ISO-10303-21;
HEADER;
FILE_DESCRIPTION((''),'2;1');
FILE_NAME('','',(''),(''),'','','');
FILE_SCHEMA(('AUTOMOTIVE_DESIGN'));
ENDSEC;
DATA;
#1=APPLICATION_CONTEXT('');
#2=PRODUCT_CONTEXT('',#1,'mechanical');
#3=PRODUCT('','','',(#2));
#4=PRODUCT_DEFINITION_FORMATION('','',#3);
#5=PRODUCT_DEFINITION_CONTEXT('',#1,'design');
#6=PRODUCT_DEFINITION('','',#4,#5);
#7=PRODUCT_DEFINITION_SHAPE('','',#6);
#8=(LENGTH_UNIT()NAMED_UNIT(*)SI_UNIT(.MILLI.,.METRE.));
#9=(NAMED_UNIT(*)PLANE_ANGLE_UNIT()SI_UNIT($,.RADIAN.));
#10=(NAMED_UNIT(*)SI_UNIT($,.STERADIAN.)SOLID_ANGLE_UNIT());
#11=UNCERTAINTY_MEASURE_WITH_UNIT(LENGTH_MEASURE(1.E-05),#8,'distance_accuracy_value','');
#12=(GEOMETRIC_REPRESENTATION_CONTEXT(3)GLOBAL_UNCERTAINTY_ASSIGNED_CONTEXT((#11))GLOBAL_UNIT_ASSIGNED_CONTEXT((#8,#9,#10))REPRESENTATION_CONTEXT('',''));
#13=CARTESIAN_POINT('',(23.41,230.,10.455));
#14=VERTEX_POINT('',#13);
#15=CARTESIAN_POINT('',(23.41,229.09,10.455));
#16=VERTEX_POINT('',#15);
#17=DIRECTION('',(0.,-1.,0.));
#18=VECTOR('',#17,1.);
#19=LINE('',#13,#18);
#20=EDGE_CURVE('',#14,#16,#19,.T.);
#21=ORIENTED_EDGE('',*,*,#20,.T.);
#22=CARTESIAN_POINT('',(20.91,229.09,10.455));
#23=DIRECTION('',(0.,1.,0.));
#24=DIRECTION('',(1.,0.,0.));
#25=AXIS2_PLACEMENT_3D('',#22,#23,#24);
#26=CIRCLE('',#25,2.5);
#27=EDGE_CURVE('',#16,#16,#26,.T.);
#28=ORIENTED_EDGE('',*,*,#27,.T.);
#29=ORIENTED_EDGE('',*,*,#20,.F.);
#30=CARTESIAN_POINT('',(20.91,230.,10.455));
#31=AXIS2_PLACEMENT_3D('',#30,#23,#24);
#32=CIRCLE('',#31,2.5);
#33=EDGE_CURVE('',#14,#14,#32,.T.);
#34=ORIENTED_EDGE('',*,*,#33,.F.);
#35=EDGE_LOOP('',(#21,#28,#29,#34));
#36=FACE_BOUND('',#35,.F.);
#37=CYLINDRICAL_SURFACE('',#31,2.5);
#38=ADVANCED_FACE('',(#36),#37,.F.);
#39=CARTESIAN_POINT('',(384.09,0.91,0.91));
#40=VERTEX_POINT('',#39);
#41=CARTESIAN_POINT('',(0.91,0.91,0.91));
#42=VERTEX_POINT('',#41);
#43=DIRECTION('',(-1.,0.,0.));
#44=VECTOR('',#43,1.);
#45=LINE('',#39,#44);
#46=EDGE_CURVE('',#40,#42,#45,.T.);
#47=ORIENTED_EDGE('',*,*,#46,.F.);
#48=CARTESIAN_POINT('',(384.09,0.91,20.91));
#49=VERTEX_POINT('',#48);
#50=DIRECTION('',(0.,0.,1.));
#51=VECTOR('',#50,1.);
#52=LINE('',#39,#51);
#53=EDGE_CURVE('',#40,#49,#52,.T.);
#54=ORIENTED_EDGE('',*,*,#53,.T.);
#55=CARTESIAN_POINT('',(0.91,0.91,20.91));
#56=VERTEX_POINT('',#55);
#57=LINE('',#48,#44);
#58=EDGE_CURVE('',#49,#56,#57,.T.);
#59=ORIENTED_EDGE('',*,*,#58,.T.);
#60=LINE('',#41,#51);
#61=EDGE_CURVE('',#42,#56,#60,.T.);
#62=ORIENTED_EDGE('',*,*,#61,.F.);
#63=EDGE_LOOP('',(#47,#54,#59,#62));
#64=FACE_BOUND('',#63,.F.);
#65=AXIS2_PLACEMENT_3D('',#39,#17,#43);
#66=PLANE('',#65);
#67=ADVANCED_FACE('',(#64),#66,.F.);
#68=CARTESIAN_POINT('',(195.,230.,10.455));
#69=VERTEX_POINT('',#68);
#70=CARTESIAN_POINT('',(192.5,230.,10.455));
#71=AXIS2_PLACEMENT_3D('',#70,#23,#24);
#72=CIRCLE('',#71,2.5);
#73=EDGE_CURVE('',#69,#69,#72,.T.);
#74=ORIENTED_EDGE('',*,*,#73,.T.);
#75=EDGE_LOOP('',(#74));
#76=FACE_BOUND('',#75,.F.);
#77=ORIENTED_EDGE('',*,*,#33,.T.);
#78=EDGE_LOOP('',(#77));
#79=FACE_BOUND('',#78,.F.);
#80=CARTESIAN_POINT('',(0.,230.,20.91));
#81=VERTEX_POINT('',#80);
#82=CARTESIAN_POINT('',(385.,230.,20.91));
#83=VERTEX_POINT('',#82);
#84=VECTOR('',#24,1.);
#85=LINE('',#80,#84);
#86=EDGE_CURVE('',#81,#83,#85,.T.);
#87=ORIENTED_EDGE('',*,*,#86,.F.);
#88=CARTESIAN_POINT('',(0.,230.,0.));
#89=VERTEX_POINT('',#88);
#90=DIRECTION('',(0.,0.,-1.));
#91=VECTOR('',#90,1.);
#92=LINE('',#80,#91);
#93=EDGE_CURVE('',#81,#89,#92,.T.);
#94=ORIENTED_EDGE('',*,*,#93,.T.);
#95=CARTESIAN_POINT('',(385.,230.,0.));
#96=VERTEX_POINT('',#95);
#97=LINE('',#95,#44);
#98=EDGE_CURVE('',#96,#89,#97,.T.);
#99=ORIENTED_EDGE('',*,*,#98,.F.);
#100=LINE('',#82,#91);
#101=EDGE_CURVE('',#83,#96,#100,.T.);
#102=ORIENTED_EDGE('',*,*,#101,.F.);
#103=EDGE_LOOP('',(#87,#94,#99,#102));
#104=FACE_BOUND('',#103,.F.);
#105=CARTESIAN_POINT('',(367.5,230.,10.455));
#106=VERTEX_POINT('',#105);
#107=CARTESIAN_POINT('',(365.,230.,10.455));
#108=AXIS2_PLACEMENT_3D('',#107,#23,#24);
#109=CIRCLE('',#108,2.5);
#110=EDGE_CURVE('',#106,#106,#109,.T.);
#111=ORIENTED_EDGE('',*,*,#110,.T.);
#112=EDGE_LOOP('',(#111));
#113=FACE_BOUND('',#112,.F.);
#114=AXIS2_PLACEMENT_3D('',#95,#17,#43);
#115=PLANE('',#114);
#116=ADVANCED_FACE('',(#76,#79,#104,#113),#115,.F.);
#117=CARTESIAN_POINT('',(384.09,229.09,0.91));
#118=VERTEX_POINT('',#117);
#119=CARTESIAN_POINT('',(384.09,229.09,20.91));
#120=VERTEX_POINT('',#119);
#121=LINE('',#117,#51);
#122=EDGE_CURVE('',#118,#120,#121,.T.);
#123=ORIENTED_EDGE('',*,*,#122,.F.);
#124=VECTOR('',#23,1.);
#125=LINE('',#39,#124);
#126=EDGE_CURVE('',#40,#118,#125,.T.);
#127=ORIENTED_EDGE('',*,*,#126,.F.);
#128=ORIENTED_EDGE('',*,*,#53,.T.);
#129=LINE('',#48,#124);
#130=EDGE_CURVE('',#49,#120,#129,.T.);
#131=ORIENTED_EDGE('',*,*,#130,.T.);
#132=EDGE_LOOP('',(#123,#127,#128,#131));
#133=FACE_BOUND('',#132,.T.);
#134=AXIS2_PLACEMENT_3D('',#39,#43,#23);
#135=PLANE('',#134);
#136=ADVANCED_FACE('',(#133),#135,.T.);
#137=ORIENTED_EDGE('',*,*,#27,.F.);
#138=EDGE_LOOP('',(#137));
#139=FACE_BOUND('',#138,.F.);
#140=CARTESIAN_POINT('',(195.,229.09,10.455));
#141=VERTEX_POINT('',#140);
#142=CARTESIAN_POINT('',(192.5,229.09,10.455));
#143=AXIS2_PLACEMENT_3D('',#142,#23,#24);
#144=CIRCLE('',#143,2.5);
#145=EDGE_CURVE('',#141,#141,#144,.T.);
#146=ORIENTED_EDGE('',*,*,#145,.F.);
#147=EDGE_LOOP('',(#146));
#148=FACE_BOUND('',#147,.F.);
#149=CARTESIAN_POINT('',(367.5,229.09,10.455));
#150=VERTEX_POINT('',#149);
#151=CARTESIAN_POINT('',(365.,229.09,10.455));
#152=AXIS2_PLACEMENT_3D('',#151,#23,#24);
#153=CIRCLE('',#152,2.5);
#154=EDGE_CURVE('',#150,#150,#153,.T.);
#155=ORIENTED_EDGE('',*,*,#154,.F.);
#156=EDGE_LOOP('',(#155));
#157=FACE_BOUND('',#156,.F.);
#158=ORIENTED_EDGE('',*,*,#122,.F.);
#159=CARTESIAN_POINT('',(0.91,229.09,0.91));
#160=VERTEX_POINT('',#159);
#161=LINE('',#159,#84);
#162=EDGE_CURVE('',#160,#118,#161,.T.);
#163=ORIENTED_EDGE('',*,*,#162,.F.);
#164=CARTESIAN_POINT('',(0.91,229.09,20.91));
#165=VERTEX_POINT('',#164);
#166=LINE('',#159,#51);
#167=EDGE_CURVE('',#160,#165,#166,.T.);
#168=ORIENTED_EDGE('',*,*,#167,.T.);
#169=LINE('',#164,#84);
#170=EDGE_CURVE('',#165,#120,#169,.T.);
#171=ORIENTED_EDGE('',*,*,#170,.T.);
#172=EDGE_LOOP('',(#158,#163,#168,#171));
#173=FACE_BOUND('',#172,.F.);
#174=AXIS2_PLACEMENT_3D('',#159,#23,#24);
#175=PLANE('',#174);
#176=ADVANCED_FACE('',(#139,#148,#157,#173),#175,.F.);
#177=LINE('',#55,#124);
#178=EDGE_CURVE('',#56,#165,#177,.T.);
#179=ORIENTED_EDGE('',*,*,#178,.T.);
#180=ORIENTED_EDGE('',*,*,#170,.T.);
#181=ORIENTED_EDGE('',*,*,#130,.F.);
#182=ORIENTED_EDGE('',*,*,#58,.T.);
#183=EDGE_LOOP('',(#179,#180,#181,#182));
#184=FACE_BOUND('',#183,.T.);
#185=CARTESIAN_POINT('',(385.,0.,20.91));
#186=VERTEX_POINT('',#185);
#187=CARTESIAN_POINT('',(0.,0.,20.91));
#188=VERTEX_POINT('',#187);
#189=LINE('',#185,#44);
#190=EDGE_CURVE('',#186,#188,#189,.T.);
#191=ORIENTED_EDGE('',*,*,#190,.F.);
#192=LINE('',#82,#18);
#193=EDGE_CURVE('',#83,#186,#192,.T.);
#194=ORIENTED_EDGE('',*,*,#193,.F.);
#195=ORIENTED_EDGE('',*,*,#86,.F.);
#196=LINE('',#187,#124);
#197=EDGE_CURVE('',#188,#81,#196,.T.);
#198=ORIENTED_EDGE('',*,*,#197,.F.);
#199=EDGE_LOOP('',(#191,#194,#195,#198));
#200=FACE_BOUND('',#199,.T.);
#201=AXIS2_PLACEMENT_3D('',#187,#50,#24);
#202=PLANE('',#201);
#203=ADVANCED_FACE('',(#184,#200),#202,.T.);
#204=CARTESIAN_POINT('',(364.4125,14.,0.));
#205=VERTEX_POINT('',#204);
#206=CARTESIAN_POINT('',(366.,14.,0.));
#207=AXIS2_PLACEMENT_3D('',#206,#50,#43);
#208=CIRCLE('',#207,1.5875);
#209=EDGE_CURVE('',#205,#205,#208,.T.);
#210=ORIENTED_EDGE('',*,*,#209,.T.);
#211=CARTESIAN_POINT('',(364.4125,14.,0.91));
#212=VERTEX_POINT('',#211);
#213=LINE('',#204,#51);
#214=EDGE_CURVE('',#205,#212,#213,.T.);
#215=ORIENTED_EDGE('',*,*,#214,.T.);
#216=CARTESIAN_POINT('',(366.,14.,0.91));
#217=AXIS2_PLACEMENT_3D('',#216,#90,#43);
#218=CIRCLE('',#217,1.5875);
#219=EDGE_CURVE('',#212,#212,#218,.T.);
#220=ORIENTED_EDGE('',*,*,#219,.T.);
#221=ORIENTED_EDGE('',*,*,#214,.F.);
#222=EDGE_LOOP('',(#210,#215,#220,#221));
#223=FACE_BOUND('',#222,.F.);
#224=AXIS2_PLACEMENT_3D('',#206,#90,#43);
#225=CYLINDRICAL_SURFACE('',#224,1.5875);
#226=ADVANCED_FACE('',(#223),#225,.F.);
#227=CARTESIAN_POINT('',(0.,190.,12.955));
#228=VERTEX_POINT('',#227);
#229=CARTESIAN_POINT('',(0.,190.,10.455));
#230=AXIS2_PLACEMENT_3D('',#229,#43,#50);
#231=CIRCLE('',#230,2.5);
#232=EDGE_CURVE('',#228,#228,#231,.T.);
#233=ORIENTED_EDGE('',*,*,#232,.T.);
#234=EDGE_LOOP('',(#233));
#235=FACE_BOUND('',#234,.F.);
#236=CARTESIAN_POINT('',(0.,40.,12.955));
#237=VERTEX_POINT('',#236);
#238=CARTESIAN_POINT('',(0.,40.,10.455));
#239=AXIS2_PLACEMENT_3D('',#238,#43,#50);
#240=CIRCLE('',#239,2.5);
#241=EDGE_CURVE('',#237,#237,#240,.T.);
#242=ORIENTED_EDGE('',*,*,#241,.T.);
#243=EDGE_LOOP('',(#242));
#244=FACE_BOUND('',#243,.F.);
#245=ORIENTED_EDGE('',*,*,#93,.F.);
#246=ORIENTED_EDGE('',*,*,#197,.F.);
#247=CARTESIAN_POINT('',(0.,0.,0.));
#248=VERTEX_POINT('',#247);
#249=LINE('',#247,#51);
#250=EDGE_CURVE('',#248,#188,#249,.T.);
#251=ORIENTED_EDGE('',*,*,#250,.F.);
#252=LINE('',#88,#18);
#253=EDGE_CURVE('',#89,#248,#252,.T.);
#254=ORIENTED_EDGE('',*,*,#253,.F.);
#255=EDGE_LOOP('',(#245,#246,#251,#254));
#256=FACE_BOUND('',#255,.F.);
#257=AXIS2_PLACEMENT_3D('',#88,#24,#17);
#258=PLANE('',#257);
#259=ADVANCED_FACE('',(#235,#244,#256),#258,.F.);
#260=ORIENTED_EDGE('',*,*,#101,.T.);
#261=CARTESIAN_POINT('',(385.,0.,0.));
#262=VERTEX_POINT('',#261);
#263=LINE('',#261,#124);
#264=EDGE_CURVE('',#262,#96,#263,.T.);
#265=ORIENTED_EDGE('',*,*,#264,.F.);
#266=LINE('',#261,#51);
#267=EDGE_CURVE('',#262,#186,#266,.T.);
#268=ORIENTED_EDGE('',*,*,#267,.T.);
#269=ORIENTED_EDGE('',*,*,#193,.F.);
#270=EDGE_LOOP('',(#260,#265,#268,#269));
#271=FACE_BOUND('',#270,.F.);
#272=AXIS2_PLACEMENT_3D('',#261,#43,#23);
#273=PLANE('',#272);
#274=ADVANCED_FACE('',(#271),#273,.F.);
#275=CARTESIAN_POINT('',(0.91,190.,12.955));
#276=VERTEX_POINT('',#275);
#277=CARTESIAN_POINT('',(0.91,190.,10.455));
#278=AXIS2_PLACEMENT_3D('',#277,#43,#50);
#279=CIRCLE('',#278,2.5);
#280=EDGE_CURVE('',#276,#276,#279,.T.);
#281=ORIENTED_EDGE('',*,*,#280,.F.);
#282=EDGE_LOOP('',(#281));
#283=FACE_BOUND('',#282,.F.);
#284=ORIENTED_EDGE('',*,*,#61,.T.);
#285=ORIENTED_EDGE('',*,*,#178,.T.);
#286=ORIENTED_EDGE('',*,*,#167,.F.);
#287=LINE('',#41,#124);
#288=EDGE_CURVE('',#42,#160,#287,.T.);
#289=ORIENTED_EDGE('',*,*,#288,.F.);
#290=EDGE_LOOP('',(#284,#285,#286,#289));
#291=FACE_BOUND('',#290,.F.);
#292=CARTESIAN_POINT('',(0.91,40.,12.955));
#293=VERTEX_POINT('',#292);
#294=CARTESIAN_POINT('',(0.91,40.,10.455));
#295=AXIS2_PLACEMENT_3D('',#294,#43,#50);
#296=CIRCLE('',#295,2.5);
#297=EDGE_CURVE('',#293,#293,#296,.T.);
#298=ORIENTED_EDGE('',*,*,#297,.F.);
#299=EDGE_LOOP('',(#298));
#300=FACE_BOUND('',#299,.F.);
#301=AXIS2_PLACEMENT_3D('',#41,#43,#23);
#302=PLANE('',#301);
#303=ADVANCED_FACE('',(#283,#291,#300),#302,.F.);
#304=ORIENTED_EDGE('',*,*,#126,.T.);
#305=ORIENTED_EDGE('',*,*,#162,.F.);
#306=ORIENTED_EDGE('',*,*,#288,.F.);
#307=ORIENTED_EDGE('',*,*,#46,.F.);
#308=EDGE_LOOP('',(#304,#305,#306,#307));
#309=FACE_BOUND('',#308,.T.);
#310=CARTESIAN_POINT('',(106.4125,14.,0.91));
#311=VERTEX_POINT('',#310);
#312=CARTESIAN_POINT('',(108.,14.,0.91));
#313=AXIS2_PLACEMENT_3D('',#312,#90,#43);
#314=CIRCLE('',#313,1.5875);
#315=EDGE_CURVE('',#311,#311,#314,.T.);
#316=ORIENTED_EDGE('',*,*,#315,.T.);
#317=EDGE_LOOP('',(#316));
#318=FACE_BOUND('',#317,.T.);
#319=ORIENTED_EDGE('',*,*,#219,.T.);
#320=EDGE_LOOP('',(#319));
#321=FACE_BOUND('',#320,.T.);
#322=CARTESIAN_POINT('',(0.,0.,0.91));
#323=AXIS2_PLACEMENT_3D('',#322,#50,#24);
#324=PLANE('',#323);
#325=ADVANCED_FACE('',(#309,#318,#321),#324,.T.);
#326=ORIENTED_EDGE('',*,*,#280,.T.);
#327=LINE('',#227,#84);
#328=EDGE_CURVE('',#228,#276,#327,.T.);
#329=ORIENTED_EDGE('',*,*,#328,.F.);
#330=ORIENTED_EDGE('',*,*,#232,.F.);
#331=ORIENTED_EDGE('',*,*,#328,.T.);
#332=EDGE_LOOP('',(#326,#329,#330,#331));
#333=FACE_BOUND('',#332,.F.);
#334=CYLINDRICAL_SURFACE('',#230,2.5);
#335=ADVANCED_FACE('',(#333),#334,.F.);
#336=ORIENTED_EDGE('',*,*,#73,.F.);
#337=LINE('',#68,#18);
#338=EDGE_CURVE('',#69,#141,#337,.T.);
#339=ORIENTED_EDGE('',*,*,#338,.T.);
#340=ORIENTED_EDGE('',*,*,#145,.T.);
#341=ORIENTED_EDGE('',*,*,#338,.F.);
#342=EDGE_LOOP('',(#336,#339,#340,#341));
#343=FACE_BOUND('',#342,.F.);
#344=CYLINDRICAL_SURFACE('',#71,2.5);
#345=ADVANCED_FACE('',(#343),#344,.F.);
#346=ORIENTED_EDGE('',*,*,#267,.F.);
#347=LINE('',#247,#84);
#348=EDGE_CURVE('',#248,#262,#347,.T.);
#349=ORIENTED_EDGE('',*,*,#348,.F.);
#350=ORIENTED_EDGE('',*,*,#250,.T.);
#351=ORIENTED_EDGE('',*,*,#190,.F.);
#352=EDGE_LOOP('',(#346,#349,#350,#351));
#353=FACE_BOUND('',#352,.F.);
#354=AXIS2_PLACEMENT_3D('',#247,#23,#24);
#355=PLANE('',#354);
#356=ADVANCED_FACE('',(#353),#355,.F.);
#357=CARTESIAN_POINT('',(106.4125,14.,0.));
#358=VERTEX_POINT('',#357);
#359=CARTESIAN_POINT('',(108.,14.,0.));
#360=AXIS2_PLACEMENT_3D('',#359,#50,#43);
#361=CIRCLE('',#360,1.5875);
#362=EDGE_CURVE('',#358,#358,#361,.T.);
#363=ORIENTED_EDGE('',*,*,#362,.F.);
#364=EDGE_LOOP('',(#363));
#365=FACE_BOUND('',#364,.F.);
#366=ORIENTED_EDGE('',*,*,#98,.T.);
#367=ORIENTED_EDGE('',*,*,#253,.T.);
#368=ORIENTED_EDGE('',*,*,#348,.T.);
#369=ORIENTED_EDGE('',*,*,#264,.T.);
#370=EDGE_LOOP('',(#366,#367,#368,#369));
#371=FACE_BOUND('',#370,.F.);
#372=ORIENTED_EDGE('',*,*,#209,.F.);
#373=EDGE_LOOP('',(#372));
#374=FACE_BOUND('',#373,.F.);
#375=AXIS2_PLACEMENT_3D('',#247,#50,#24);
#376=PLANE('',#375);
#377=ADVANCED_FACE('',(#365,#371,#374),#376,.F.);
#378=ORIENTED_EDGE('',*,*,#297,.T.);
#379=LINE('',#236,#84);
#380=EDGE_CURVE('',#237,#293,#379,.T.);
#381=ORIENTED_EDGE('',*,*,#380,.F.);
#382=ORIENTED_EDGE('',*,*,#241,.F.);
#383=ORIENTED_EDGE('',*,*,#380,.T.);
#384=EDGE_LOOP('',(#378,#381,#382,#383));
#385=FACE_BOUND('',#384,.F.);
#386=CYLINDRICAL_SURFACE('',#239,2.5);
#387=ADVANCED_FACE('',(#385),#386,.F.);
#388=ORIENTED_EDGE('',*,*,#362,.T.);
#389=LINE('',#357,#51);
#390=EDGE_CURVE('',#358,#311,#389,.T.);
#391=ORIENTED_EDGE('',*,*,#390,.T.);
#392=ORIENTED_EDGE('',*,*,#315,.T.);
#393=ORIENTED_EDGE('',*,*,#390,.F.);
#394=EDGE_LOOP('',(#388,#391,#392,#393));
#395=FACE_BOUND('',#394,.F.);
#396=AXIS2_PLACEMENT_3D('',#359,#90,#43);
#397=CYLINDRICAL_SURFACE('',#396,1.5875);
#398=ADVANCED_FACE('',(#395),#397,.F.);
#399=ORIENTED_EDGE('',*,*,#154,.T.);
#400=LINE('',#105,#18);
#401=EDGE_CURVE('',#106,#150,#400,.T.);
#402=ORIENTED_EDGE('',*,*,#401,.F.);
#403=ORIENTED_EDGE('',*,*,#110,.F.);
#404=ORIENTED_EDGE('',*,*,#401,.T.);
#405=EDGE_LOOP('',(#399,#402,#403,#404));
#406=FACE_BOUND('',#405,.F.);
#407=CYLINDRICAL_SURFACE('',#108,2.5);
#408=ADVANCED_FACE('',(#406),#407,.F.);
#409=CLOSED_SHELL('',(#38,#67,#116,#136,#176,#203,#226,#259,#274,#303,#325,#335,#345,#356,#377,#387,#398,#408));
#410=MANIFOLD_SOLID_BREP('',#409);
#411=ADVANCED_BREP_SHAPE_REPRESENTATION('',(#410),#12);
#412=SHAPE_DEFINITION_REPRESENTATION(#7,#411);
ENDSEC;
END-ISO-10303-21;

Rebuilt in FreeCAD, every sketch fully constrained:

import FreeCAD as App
import Part
import Sketcher

V = App.Vector


def add_polygon(sketch, points):
    """Adds a closed chain of lines whose ends are joined by coincident constraints."""
    first, n = sketch.GeometryCount, len(points)
    for a, b in zip(points, points[1:] + points[:1]):
        sketch.addGeometry(Part.LineSegment(App.Vector(*a, 0), App.Vector(*b, 0)), False)
    for i in range(n):
        sketch.addConstraint(Sketcher.Constraint("Coincident", first + i, 2, first + (i + 1) % n, 1))

doc = App.newDocument("Part")
body = doc.addObject("PartDesign::Body", "Body")

# Sketch on XY plane
sketch1 = body.newObject("Sketcher::SketchObject", "Sketch")
sketch1.AttachmentSupport = (doc.getObject("XY_Plane"), [""])
sketch1.MapMode = "FlatFace"
add_polygon(sketch1, [(0, 230), (0, 0), (385, 0), (385, 230)])  # lines 0-3
sketch1.addConstraint(Sketcher.Constraint("Vertical", 0))
sketch1.addConstraint(Sketcher.Constraint("Horizontal", 1))
sketch1.addConstraint(Sketcher.Constraint("Vertical", 2))
sketch1.addConstraint(Sketcher.Constraint("Horizontal", 3))
sketch1.addConstraint(Sketcher.Constraint("Coincident", 0, 2, -1, 1))
sketch1.addConstraint(Sketcher.Constraint("DistanceX", 1, 1, 1, 2, 385.0))
sketch1.addConstraint(Sketcher.Constraint("DistanceY", 0, 2, 0, 1, 230.0))
pad1 = body.newObject("PartDesign::Pad", "Pad")
pad1.Profile = sketch1
pad1.Length = 0.91

# Sketch on XY plane
sketch2 = body.newObject("Sketcher::SketchObject", "Sketch001")
sketch2.AttachmentSupport = (doc.getObject("XY_Plane"), [""])
sketch2.MapMode = "FlatFace"
sketch2.AttachmentOffset = App.Placement(V(0, 0, 0.91), App.Rotation())
add_polygon(sketch2, [(385, 0), (385, 230), (0, 230), (0, 0)])  # lines 0-3
add_polygon(sketch2, [(384, 1), (1, 1), (1, 229), (384, 229)])  # lines 4-7
sketch2.addConstraint(Sketcher.Constraint("Vertical", 0))
sketch2.addConstraint(Sketcher.Constraint("Horizontal", 1))
sketch2.addConstraint(Sketcher.Constraint("Vertical", 2))
sketch2.addConstraint(Sketcher.Constraint("Horizontal", 3))
sketch2.addConstraint(Sketcher.Constraint("Horizontal", 4))
sketch2.addConstraint(Sketcher.Constraint("Vertical", 5))
sketch2.addConstraint(Sketcher.Constraint("Horizontal", 6))
sketch2.addConstraint(Sketcher.Constraint("Vertical", 7))
sketch2.addConstraint(Sketcher.Constraint("Coincident", 2, 2, -1, 1))
sketch2.addConstraint(Sketcher.Constraint("DistanceX", 1, 2, 1, 1, 385.0))
sketch2.addConstraint(Sketcher.Constraint("DistanceY", 0, 1, 0, 2, 230.0))
sketch2.addConstraint(Sketcher.Constraint("DistanceX", -1, 1, 4, 2, 0.91))
sketch2.addConstraint(Sketcher.Constraint("DistanceY", -1, 1, 4, 2, 0.91))
sketch2.addConstraint(Sketcher.Constraint("DistanceY", 5, 2, 1, 2, 0.91))
sketch2.addConstraint(Sketcher.Constraint("DistanceX", 6, 2, 0, 2, 0.91))
pad2 = body.newObject("PartDesign::Pad", "Pad001")
pad2.Profile = sketch2
pad2.Length = 20

# Sketch on XY plane
sketch3 = body.newObject("Sketcher::SketchObject", "Sketch002")
sketch3.AttachmentSupport = (doc.getObject("XY_Plane"), [""])
sketch3.MapMode = "FlatFace"
sketch3.addGeometry(Part.Circle(V(366, 14, 0), V(0, 0, 1), 1.6), False)
sketch3.addGeometry(Part.Circle(V(108, 14, 0), V(0, 0, 1), 1.6), False)
sketch3.addConstraint(Sketcher.Constraint("Equal", 0, 1))
sketch3.addConstraint(Sketcher.Constraint("Horizontal", 0, 3, 1, 3))
sketch3.addConstraint(Sketcher.Constraint("Diameter", 0, 3.175))
sketch3.addConstraint(Sketcher.Constraint("DistanceY", -1, 1, 0, 3, 14.0))
sketch3.addConstraint(Sketcher.Constraint("DistanceX", 1, 3, 0, 3, 258.0))
sketch3.addConstraint(Sketcher.Constraint("DistanceX", -1, 1, 0, 3, 366.0))
pocket1 = body.newObject("PartDesign::Pocket", "Pocket")
pocket1.Profile = sketch3
pocket1.Type = "ThroughAll"
pocket1.Reversed = True

# Sketch on XZ plane
sketch4 = body.newObject("Sketcher::SketchObject", "Sketch003")
sketch4.AttachmentSupport = (doc.getObject("XZ_Plane"), [""])
sketch4.MapMode = "FlatFace"
sketch4.AttachmentOffset = App.Placement(V(0, 0, -230), App.Rotation())
sketch4.addGeometry(Part.Circle(V(20.9, 10.5, 0), V(0, 0, 1), 2.5), False)
sketch4.addGeometry(Part.Circle(V(192.5, 10.5, 0), V(0, 0, 1), 2.5), False)
sketch4.addGeometry(Part.Circle(V(365, 10.5, 0), V(0, 0, 1), 2.5), False)
sketch4.addConstraint(Sketcher.Constraint("Equal", 0, 1))
sketch4.addConstraint(Sketcher.Constraint("Equal", 1, 2))
sketch4.addConstraint(Sketcher.Constraint("Horizontal", 0, 3, 1, 3))
sketch4.addConstraint(Sketcher.Constraint("Horizontal", 1, 3, 2, 3))
sketch4.addConstraint(Sketcher.Constraint("Diameter", 0, 5.0))
sketch4.addConstraint(Sketcher.Constraint("DistanceX", -1, 1, 2, 3, 365.0))
sketch4.addConstraint(Sketcher.Constraint("DistanceX", -1, 1, 1, 3, 192.5))
sketch4.addConstraint(Sketcher.Constraint("DistanceX", -1, 1, 0, 3, 20.91))
sketch4.addConstraint(Sketcher.Constraint("DistanceY", -1, 1, 0, 3, 10.455))
pocket2 = body.newObject("PartDesign::Pocket", "Pocket001")
pocket2.Profile = sketch4
pocket2.Length = 1.52
pocket2.Reversed = True

# Sketch on YZ plane
sketch5 = body.newObject("Sketcher::SketchObject", "Sketch004")
sketch5.AttachmentSupport = (doc.getObject("YZ_Plane"), [""])
sketch5.MapMode = "FlatFace"
sketch5.addGeometry(Part.Circle(V(190, 10.5, 0), V(0, 0, 1), 2.5), False)
sketch5.addGeometry(Part.Circle(V(40, 10.5, 0), V(0, 0, 1), 2.5), False)
sketch5.addConstraint(Sketcher.Constraint("Equal", 0, 1))
sketch5.addConstraint(Sketcher.Constraint("Horizontal", 0, 3, 1, 3))
sketch5.addConstraint(Sketcher.Constraint("Diameter", 0, 5.0))
sketch5.addConstraint(Sketcher.Constraint("DistanceX", -1, 1, 1, 3, 40.0))
sketch5.addConstraint(Sketcher.Constraint("DistanceX", -1, 1, 0, 3, 190.0))
sketch5.addConstraint(Sketcher.Constraint("DistanceY", -1, 1, 0, 3, 10.455))
pocket3 = body.newObject("PartDesign::Pocket", "Pocket002")
pocket3.Profile = sketch5
pocket3.Length = 1.52
pocket3.Reversed = True

doc.recompute()
